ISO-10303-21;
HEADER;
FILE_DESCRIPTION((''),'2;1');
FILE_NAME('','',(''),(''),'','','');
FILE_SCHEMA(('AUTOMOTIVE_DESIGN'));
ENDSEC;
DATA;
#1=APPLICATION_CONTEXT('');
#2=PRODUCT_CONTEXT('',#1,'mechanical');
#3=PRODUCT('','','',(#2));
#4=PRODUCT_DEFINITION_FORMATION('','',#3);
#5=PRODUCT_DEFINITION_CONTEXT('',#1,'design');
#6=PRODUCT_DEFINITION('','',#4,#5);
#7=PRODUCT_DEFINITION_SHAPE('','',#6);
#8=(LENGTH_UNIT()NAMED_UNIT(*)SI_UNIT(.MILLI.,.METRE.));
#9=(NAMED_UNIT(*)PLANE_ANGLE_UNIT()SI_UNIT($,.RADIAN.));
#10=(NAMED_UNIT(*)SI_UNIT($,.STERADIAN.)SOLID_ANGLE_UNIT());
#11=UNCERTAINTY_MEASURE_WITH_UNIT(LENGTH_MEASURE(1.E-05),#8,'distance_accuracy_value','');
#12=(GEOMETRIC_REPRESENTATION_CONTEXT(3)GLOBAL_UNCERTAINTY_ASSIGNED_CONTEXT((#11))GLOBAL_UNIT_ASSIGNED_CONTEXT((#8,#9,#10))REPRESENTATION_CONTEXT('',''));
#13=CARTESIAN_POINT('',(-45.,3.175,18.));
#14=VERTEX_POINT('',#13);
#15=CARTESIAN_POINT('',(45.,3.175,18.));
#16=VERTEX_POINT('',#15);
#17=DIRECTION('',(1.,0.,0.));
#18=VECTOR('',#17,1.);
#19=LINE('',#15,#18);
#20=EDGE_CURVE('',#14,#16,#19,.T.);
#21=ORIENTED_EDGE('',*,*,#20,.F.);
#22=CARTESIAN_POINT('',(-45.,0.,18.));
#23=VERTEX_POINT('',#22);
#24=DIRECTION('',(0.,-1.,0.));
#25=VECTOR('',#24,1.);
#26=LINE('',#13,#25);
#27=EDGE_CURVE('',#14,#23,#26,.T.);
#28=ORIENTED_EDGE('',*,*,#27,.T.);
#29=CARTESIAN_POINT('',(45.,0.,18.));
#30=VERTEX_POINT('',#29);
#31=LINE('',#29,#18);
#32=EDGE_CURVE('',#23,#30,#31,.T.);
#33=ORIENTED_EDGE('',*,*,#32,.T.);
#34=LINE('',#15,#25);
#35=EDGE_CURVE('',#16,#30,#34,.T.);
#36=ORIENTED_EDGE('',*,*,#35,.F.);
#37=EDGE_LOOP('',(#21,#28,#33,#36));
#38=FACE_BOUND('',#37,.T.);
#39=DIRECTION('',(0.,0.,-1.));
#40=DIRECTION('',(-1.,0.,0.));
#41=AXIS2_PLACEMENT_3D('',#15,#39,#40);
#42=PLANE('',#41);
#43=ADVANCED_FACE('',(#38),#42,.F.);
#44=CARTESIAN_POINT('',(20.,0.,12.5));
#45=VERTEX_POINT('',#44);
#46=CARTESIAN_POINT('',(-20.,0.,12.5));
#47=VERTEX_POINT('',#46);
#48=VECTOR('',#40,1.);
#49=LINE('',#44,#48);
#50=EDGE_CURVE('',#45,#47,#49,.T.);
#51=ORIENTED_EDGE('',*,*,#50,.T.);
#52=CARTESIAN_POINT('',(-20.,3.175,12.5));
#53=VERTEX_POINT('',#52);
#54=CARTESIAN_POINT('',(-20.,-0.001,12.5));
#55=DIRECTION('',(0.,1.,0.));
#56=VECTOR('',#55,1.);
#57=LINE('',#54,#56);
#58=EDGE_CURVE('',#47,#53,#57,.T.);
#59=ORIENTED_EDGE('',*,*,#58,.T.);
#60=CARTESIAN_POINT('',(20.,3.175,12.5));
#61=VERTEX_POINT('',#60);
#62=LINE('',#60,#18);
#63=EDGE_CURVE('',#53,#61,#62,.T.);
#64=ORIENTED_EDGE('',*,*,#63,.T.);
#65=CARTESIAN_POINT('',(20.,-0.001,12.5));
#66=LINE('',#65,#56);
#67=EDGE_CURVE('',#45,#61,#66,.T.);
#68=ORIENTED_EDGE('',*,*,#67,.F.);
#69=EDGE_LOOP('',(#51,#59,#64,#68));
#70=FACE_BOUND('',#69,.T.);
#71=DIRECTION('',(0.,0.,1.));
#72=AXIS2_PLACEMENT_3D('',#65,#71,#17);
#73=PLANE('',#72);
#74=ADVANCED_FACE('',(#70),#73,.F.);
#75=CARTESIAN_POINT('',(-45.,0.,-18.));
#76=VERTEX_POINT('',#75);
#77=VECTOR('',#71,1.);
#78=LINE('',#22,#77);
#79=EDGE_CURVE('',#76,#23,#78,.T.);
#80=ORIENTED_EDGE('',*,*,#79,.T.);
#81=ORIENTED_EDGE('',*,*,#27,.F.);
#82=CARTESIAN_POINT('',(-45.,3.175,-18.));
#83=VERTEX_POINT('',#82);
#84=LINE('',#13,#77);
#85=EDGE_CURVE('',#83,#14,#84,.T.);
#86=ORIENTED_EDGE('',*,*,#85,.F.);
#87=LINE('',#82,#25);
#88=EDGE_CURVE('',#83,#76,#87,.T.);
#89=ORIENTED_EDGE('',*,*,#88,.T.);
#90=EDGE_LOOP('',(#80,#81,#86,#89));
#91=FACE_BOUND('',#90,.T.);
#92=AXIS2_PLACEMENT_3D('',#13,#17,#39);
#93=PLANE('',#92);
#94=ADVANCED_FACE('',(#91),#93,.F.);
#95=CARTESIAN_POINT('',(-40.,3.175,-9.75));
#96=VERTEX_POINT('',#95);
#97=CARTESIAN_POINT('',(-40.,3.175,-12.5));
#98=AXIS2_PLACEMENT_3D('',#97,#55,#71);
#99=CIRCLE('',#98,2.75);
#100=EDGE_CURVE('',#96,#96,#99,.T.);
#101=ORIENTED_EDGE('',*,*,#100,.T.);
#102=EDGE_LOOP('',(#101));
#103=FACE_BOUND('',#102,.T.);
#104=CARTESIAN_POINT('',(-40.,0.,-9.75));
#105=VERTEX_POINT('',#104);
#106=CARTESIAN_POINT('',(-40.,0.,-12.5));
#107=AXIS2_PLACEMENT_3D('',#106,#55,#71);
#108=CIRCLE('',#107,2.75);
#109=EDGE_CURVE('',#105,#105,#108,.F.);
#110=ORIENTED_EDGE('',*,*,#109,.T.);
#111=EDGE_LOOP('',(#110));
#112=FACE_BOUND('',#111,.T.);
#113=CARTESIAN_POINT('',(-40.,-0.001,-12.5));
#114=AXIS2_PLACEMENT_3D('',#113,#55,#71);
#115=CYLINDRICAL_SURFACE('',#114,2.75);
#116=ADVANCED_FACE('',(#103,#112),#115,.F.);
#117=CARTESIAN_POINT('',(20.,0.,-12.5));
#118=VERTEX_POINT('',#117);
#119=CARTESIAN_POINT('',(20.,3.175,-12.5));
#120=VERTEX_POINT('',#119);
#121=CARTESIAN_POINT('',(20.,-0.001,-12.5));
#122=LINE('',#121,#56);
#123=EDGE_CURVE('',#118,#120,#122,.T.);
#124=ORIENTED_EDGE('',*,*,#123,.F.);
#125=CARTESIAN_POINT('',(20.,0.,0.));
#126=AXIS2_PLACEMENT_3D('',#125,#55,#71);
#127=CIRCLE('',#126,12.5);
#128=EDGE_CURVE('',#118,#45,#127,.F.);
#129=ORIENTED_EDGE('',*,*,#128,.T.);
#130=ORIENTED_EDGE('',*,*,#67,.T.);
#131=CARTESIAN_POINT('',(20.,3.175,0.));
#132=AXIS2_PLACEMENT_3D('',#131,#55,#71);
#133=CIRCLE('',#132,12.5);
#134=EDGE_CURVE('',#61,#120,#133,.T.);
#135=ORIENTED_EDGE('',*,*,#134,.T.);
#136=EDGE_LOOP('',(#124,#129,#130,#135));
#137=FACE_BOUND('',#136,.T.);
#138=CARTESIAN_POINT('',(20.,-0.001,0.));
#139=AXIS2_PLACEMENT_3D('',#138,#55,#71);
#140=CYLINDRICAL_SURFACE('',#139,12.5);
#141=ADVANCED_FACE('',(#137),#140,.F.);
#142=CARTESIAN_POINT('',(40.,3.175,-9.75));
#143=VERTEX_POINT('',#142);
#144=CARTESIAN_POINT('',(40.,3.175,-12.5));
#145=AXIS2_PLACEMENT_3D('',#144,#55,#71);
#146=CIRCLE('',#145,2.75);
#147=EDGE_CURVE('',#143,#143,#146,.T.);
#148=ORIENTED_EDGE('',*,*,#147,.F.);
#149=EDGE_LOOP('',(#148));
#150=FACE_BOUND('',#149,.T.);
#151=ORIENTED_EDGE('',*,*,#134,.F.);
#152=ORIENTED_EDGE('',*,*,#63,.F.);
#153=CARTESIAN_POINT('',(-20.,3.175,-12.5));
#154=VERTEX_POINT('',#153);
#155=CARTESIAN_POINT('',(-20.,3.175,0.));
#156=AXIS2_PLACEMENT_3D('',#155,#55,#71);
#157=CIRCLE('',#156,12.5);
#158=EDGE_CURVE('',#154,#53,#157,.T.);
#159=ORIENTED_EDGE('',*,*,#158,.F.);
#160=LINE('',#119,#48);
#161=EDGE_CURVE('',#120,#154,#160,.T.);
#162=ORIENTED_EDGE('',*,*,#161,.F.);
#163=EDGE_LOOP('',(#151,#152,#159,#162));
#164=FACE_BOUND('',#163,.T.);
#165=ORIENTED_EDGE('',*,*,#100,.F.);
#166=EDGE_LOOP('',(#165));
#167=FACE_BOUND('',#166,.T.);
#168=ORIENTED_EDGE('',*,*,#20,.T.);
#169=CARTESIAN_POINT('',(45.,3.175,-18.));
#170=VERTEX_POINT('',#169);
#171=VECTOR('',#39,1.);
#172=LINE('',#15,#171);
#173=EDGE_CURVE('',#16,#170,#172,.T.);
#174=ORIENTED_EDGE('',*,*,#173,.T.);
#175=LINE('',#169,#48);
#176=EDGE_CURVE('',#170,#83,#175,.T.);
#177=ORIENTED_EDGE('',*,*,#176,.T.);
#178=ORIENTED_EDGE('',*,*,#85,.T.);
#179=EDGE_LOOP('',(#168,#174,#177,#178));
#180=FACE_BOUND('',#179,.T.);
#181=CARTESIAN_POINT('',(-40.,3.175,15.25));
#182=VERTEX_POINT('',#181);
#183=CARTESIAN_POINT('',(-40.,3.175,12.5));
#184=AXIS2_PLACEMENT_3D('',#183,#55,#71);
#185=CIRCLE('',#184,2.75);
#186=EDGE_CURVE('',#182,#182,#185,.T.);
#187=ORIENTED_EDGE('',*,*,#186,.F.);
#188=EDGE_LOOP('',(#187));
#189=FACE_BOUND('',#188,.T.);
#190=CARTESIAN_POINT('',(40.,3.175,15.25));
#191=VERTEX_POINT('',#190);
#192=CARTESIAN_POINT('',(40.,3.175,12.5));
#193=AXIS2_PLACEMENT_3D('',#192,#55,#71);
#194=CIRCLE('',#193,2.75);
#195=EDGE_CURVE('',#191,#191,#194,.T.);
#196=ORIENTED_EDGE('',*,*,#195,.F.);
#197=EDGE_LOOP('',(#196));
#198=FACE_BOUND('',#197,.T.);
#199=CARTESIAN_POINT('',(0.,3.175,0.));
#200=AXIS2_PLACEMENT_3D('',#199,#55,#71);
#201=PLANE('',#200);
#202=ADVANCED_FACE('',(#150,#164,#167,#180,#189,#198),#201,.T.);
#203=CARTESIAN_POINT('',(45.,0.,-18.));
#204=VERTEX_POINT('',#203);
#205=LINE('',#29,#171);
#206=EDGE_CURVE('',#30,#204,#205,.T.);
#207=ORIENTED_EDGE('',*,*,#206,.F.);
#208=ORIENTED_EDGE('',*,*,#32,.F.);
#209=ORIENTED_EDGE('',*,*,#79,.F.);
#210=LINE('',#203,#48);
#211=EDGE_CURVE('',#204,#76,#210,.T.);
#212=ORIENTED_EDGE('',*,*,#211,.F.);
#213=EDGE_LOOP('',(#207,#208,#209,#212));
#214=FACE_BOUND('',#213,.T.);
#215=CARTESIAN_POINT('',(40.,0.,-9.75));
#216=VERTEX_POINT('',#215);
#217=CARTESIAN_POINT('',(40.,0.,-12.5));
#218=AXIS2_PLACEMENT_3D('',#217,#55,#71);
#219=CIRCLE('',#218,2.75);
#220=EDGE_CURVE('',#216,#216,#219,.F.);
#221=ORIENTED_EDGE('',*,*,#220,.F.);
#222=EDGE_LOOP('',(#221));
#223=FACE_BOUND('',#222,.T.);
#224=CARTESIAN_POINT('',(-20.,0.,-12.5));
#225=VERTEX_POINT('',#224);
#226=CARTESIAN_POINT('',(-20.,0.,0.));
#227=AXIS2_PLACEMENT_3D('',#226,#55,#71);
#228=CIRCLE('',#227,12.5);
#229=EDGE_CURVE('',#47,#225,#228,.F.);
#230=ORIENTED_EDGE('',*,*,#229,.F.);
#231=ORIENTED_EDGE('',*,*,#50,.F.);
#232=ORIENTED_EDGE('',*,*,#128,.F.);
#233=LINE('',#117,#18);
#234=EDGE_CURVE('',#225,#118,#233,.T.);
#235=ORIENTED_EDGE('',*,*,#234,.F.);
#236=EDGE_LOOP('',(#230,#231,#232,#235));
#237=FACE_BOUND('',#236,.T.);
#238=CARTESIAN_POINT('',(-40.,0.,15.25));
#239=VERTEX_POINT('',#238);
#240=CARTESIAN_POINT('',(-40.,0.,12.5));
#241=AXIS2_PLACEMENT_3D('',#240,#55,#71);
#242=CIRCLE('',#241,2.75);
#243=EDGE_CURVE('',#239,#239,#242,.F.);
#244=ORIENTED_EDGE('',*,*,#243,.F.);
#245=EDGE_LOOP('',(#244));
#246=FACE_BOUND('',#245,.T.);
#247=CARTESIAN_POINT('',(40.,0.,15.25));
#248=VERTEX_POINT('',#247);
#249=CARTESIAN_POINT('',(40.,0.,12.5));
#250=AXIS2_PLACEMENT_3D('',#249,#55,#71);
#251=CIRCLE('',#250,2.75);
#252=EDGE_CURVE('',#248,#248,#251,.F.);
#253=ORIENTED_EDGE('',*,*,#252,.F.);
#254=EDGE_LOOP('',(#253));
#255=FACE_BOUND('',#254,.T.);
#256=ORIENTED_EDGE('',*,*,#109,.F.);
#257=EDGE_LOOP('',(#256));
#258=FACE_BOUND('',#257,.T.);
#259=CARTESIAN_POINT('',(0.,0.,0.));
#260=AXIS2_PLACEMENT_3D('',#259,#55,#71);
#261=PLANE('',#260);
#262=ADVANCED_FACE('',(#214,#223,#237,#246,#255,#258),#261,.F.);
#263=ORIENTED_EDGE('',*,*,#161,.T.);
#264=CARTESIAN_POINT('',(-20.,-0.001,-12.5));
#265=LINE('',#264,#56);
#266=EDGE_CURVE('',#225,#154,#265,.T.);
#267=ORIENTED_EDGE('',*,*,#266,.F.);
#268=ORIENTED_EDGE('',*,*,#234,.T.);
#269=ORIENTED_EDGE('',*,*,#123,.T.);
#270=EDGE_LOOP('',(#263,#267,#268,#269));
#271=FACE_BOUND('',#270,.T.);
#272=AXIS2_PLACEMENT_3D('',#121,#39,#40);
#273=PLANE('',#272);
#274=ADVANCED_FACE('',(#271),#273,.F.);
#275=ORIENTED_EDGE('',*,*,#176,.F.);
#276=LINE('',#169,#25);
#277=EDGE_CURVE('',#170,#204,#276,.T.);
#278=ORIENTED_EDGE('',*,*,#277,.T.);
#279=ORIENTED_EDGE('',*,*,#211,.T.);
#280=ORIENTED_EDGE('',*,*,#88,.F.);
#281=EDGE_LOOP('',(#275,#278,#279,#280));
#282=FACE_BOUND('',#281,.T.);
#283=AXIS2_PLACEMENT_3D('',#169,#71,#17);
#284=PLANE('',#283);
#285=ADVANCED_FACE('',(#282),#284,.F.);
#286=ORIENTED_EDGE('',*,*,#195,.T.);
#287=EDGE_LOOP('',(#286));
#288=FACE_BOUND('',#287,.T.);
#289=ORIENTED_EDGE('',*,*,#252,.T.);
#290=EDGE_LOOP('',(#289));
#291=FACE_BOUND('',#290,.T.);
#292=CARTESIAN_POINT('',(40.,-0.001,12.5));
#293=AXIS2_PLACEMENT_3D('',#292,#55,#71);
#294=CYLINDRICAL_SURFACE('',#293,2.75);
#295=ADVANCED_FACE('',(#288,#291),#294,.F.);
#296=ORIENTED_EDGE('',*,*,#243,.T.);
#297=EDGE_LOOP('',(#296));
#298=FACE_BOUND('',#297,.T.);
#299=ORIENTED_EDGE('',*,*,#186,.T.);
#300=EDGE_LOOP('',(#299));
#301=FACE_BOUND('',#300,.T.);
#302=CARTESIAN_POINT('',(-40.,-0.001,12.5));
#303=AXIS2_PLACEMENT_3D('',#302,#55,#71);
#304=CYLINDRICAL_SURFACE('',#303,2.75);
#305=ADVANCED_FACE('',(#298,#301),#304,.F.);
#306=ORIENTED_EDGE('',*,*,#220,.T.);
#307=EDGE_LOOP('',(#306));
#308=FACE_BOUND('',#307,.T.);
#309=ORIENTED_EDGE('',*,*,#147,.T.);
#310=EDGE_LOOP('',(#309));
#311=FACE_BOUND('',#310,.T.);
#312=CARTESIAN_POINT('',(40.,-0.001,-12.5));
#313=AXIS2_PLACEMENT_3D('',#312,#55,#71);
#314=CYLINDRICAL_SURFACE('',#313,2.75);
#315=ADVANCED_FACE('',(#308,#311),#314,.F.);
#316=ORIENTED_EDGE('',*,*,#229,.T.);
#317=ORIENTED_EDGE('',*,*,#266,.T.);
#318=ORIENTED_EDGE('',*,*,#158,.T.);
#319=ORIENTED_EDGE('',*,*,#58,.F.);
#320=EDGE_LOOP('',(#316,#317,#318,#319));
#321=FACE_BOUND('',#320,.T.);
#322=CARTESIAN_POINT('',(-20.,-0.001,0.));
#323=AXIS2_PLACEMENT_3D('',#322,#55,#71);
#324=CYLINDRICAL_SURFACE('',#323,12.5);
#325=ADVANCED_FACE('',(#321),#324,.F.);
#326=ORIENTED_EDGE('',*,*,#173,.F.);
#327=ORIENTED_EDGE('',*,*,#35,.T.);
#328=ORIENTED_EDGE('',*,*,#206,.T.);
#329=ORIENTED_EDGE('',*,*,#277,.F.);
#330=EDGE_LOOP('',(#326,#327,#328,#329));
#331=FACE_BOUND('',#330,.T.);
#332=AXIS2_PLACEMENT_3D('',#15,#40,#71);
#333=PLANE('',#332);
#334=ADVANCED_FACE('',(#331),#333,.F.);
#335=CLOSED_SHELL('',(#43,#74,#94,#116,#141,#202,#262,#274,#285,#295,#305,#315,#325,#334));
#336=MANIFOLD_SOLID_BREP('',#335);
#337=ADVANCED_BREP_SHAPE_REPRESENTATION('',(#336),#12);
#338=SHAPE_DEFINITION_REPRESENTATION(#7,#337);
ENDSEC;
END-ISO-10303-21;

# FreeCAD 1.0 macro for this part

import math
import FreeCAD as App
import Part
import Sketcher
from FreeCAD import Vector

doc = App.newDocument("Part")
params = doc.addObject("Spreadsheet::Sheet", "Params")
for row, (alias, value) in enumerate([
    ("sketch1_width", "90 mm"),
    ("sketch1_height", "36 mm"),
    ("pad1_length", "3.175 mm"),
    ("sketch2_diameter", "5.5 mm"),
    ("sketch3_diameter", "5.5 mm"),
    ("sketch4_diameter", "5.5 mm"),
    ("sketch5_diameter", "5.5 mm"),
    ("sketch6_radius", "12.5 mm"),
    ("sketch6_width", "40 mm"),
], start=1):
    params.set(f"A{row}", alias)
    params.set(f"B{row}", "=" + value)
    params.setAlias(f"B{row}", alias)

body = doc.addObject("PartDesign::Body", "Body")

# Sketch on XZ plane
sketch1 = doc.addObject("Sketcher::SketchObject", "Sketch")
body.addObject(sketch1)
sketch1.AttachmentSupport = (doc.XZ_Plane, [""])
sketch1.MapMode = "FlatFace"
sketch1.addGeometry([
    Part.LineSegment(Vector(-45, -18, 0), Vector(-45, 18, 0)),
    Part.LineSegment(Vector(-45, 18, 0), Vector(45, 18, 0)),
    Part.LineSegment(Vector(45, 18, 0), Vector(45, -18, 0)),
    Part.LineSegment(Vector(45, -18, 0), Vector(-45, -18, 0)),
], False)
sketch1.addConstraint([
    Sketcher.Constraint("Coincident", 0, 2, 1, 1),
    Sketcher.Constraint("Coincident", 1, 2, 2, 1),
    Sketcher.Constraint("Coincident", 2, 2, 3, 1),
    Sketcher.Constraint("Coincident", 3, 2, 0, 1),
    Sketcher.Constraint("Vertical", 0),
    Sketcher.Constraint("Horizontal", 1),
    Sketcher.Constraint("Vertical", 2),
    Sketcher.Constraint("Horizontal", 3),
    Sketcher.Constraint("Symmetric", 0, 2, 2, 2, -1, 1),
    Sketcher.Constraint("DistanceX", 1, 1, 1, 2, 90.0),
    Sketcher.Constraint("DistanceY", 0, 1, 0, 2, 36.0),
])
sketch1.setExpression("Constraints[9]", "Params.sketch1_width")
sketch1.setExpression("Constraints[10]", "Params.sketch1_height")
pad1 = doc.addObject("PartDesign::Pad", "Pad")
body.addObject(pad1)
pad1.Profile = sketch1
pad1.setExpression("Length", "Params.pad1_length")
pad1.Reversed = True

# Sketch on XZ plane
sketch2 = doc.addObject("Sketcher::SketchObject", "Sketch001")
body.addObject(sketch2)
sketch2.AttachmentSupport = (doc.XZ_Plane, [""])
sketch2.MapMode = "FlatFace"
sketch2.AttachmentOffset = App.Placement(Vector(0, 0, -3.175), App.Rotation())
sketch2.addGeometry(Part.Circle(Vector(40, -12.5, 0), Vector(0, 0, 1), 2.75), False)
sketch2.addConstraint([
    Sketcher.Constraint("Diameter", 0, 5.5),
    Sketcher.Constraint("DistanceX", -1, 1, 0, 3, 40.0),
    Sketcher.Constraint("DistanceY", 0, 3, -1, 1, 12.5),
])
sketch2.setExpression("Constraints[0]", "Params.sketch2_diameter")
pocket1 = doc.addObject("PartDesign::Pocket", "Pocket")
body.addObject(pocket1)
pocket1.Profile = sketch2
pocket1.Type = "UpToFirst"
pocket1.Reversed = True

# Sketch on XZ plane
sketch3 = doc.addObject("Sketcher::SketchObject", "Sketch002")
body.addObject(sketch3)
sketch3.AttachmentSupport = (doc.XZ_Plane, [""])
sketch3.MapMode = "FlatFace"
sketch3.AttachmentOffset = App.Placement(Vector(0, 0, -3.175), App.Rotation())
sketch3.addGeometry(Part.Circle(Vector(-40, -12.5, 0), Vector(0, 0, 1), 2.75), False)
sketch3.addConstraint([
    Sketcher.Constraint("Diameter", 0, 5.5),
    Sketcher.Constraint("DistanceX", 0, 3, -1, 1, 40.0),
    Sketcher.Constraint("DistanceY", 0, 3, -1, 1, 12.5),
])
sketch3.setExpression("Constraints[0]", "Params.sketch3_diameter")
pocket2 = doc.addObject("PartDesign::Pocket", "Pocket001")
body.addObject(pocket2)
pocket2.Profile = sketch3
pocket2.Type = "UpToFirst"
pocket2.Reversed = True

# Sketch on XZ plane
sketch4 = doc.addObject("Sketcher::SketchObject", "Sketch003")
body.addObject(sketch4)
sketch4.AttachmentSupport = (doc.XZ_Plane, [""])
sketch4.MapMode = "FlatFace"
sketch4.AttachmentOffset = App.Placement(Vector(0, 0, -3.175), App.Rotation())
sketch4.addGeometry(Part.Circle(Vector(-40, 12.5, 0), Vector(0, 0, 1), 2.75), False)
sketch4.addConstraint([
    Sketcher.Constraint("Diameter", 0, 5.5),
    Sketcher.Constraint("DistanceX", 0, 3, -1, 1, 40.0),
    Sketcher.Constraint("DistanceY", -1, 1, 0, 3, 12.5),
])
sketch4.setExpression("Constraints[0]", "Params.sketch4_diameter")
pocket3 = doc.addObject("PartDesign::Pocket", "Pocket002")
body.addObject(pocket3)
pocket3.Profile = sketch4
pocket3.Type = "UpToFirst"
pocket3.Reversed = True

# Sketch on XZ plane
sketch5 = doc.addObject("Sketcher::SketchObject", "Sketch004")
body.addObject(sketch5)
sketch5.AttachmentSupport = (doc.XZ_Plane, [""])
sketch5.MapMode = "FlatFace"
sketch5.AttachmentOffset = App.Placement(Vector(0, 0, -3.175), App.Rotation())
sketch5.addGeometry(Part.Circle(Vector(40, 12.5, 0), Vector(0, 0, 1), 2.75), False)
sketch5.addConstraint([
    Sketcher.Constraint("Diameter", 0, 5.5),
    Sketcher.Constraint("DistanceX", -1, 1, 0, 3, 40.0),
    Sketcher.Constraint("DistanceY", -1, 1, 0, 3, 12.5),
])
sketch5.setExpression("Constraints[0]", "Params.sketch5_diameter")
pocket4 = doc.addObject("PartDesign::Pocket", "Pocket003")
body.addObject(pocket4)
pocket4.Profile = sketch5
pocket4.Type = "UpToFirst"
pocket4.Reversed = True

# Sketch on XZ plane
sketch6 = doc.addObject("Sketcher::SketchObject", "Sketch005")
body.addObject(sketch6)
sketch6.AttachmentSupport = (doc.XZ_Plane, [""])
sketch6.MapMode = "FlatFace"
sketch6.AttachmentOffset = App.Placement(Vector(0, 0, -3.175), App.Rotation())
sketch6.addGeometry([
    Part.LineSegment(Vector(-20, 12.5, 0), Vector(20, 12.5, 0)),
    Part.ArcOfCircle(Part.Circle(Vector(20, 0, 0), Vector(0, 0, 1), 12.5), math.radians(-90), math.radians(90)),
    Part.LineSegment(Vector(20, -12.5, 0), Vector(-20, -12.5, 0)),
    Part.ArcOfCircle(Part.Circle(Vector(-20, 0, 0), Vector(0, 0, 1), 12.5), math.radians(90), math.radians(270)),
], False)
sketch6.addConstraint([
    Sketcher.Constraint("Tangent", 0, 2, 1, 2),
    Sketcher.Constraint("Tangent", 1, 1, 2, 1),
    Sketcher.Constraint("Tangent", 2, 2, 3, 2),
    Sketcher.Constraint("Tangent", 3, 1, 0, 1),
    Sketcher.Constraint("Horizontal", 0),
    Sketcher.Constraint("Horizontal", 2),
    Sketcher.Constraint("Symmetric", 1, 3, 3, 3, -1, 1),
    Sketcher.Constraint("Radius", 1, 12.5),
    Sketcher.Constraint("DistanceX", 0, 1, 0, 2, 40.0),
])
sketch6.setExpression("Constraints[7]", "Params.sketch6_radius")
sketch6.setExpression("Constraints[8]", "Params.sketch6_width")
pocket5 = doc.addObject("PartDesign::Pocket", "Pocket004")
body.addObject(pocket5)
pocket5.Profile = sketch6
pocket5.Type = "UpToFirst"
pocket5.Reversed = True

doc.recompute()
